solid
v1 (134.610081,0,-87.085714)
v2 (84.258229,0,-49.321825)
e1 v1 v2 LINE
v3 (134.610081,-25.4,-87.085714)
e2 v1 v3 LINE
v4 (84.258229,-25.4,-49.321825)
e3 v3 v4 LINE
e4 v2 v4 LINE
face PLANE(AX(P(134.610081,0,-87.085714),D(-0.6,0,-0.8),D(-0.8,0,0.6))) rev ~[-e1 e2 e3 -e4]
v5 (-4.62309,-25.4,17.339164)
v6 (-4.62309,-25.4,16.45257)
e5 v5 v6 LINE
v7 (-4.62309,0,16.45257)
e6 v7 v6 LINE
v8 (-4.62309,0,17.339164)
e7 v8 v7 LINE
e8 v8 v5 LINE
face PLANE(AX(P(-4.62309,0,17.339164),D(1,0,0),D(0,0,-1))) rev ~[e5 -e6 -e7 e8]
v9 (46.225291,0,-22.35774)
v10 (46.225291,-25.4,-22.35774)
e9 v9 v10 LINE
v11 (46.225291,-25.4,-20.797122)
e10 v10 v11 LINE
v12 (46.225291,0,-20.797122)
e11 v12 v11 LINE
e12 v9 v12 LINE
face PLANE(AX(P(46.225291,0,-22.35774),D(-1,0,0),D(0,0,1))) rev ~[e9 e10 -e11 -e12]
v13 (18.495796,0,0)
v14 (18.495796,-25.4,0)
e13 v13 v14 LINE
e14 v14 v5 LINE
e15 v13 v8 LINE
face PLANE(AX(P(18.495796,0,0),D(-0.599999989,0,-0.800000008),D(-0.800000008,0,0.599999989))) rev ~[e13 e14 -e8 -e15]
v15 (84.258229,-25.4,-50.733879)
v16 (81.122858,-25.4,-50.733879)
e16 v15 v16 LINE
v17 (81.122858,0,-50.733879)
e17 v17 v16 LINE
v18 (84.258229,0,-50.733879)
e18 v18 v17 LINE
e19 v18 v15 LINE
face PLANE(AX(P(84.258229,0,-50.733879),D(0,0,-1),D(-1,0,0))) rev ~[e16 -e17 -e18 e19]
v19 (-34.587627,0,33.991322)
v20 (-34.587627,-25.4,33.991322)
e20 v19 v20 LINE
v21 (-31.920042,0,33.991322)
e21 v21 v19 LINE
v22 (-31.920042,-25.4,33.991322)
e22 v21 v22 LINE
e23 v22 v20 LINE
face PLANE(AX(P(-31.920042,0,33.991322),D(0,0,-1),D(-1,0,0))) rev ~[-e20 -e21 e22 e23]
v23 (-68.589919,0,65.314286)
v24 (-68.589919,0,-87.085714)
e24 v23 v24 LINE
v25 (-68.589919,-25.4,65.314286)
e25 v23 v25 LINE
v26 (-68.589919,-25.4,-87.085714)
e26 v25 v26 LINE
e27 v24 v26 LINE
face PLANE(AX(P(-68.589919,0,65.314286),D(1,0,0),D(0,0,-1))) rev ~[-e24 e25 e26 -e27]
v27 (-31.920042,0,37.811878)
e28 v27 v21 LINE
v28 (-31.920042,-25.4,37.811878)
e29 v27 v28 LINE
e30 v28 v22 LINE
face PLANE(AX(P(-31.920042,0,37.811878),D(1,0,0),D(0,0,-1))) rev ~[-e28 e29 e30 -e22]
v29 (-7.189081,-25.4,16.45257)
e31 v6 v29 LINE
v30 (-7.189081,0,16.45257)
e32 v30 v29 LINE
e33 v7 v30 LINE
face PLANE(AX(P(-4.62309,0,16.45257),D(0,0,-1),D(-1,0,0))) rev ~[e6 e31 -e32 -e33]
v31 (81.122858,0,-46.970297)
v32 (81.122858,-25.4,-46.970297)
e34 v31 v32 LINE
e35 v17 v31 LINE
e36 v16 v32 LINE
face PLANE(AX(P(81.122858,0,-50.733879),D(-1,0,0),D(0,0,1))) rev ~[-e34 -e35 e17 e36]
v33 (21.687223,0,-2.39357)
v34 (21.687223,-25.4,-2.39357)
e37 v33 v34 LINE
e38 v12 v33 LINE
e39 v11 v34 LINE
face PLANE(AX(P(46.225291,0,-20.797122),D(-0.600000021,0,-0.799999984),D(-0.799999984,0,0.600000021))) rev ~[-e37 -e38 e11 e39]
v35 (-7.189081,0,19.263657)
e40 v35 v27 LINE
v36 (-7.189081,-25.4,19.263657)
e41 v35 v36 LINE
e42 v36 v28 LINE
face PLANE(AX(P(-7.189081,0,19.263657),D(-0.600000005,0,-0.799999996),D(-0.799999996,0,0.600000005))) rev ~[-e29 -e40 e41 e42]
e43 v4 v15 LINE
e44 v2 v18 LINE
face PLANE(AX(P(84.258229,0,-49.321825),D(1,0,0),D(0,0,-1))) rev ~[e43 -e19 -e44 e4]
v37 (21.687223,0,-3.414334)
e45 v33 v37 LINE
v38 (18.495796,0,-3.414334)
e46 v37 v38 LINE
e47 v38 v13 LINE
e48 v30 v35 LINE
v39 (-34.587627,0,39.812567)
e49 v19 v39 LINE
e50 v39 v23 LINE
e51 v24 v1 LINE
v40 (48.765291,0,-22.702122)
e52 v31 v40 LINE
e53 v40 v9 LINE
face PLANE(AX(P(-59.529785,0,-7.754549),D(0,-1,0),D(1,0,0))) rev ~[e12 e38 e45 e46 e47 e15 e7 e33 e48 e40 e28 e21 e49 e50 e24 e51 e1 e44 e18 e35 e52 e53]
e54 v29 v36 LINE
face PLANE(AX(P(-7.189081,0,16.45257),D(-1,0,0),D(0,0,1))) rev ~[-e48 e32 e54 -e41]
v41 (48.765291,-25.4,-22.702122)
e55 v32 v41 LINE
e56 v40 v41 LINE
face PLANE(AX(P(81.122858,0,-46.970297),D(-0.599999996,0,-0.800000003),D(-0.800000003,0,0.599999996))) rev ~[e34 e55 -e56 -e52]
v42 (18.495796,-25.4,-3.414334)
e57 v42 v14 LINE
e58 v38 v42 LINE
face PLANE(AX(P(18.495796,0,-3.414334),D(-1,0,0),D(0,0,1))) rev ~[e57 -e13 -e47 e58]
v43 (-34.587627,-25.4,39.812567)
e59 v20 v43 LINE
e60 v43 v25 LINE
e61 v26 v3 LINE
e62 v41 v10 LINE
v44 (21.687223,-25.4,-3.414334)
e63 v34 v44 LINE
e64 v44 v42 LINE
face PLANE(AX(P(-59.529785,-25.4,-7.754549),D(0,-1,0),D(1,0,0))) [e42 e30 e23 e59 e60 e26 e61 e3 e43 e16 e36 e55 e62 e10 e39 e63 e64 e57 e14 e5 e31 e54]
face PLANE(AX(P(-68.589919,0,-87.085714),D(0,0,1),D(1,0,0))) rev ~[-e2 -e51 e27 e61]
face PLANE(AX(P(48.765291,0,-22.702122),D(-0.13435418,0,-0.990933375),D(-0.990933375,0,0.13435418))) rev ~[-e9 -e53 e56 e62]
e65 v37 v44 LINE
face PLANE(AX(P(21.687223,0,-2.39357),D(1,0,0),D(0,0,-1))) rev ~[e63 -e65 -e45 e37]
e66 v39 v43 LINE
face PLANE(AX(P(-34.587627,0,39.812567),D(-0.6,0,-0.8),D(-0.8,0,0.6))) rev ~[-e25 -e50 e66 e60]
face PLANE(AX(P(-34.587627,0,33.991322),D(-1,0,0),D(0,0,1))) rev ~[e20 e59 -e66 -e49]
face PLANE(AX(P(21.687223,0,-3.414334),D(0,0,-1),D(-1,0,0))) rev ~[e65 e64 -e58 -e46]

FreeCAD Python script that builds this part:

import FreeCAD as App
import Part
import Sketcher
from FreeCAD import Vector
Q = App.Units.Quantity


def add_polygon(sketch, points):
    """Adds a closed chain of lines whose ends are joined by coincident constraints."""
    first, n = sketch.GeometryCount, len(points)
    for a, b in zip(points, points[1:] + points[:1]):
        sketch.addGeometry(Part.LineSegment(App.Vector(*a, 0), App.Vector(*b, 0)), False)
    for i in range(n):
        sketch.addConstraint(Sketcher.Constraint("Coincident", first + i, 2, first + (i + 1) % n, 1))

doc = App.newDocument("Part")
body = doc.addObject("PartDesign::Body", "Body")

# Sketch on XZ plane
sketch1 = doc.addObject("Sketcher::SketchObject", "Sketch")
body.addObject(sketch1)
sketch1.AttachmentSupport = (doc.XZ_Plane, [""])
sketch1.MapMode = "FlatFace"
add_polygon(sketch1, [(-34.6, 39.8), (-68.6, 65.3), (-68.6, -87.1), (134.6, -87.1), (84.3, -49.3), (84.3, -50.7), (81.1, -50.7), (81.1, -47), (48.8, -22.7), (46.2, -22.4), (46.2, -20.8), (21.7, -2.4), (21.7, -3.4), (18.5, -3.4), (18.5, 0), (-4.6, 17.3), (-4.6, 16.5), (-7.2, 16.5), (-7.2, 19.3), (-31.9, 37.8), (-31.9, 34), (-34.6, 34)])  # lines 0-21
sketch1.addConstraint([
    Sketcher.Constraint("Vertical", 1),
    Sketcher.Constraint("Horizontal", 2),
    Sketcher.Constraint("Vertical", 4),
    Sketcher.Constraint("Horizontal", 5),
    Sketcher.Constraint("Vertical", 6),
    Sketcher.Constraint("Vertical", 9),
    Sketcher.Constraint("Vertical", 11),
    Sketcher.Constraint("Horizontal", 12),
    Sketcher.Constraint("Vertical", 13),
    Sketcher.Constraint("Vertical", 15),
    Sketcher.Constraint("Horizontal", 16),
    Sketcher.Constraint("Vertical", 17),
    Sketcher.Constraint("Vertical", 19),
    Sketcher.Constraint("Horizontal", 20),
    Sketcher.Constraint("Vertical", 21),
    Sketcher.Constraint("PointOnObject", 13, 2, -1),
    Sketcher.Constraint("Parallel", 0, 3),
    Sketcher.Constraint("Parallel", 3, 7),
    Sketcher.Constraint("Parallel", 7, 10),
    Sketcher.Constraint("Parallel", 10, 14),
    Sketcher.Constraint("Parallel", 14, 18),
    Sketcher.Constraint("DistanceX", 2, 1, 2, 2, Q("8 in")),
    Sketcher.Constraint("DistanceY", 1, 2, 1, 1, Q("6 in")),
    Sketcher.Constraint("DistanceX", 8, 2, 7, 2, Q("0.1 in")),
    Sketcher.Constraint("DistanceY", 7, 2, 9, 2, Q("0.075 in")),
    Sketcher.Constraint("Distance", 7, Q("1.5923999 in")),
    Sketcher.Constraint("Distance", 18, 30.913701),
    Sketcher.Constraint("DistanceX", 5, 2, 5, 1, 3.135371),
    Sketcher.Constraint("DistanceX", 16, 2, 16, 1, 2.565991),
    Sketcher.Constraint("DistanceY", 6, 1, 6, 2, 3.763582),
    Sketcher.Constraint("DistanceY", 12, 2, 14, 2, 20.753498),
    Sketcher.Constraint("Distance", 8, 2.56324),
    Sketcher.Constraint("DistanceX", 12, 2, 12, 1, 3.191427),
    Sketcher.Constraint("DistanceX", 20, 2, 20, 1, 2.667585),
    Sketcher.Constraint("DistanceY", 4, 2, 4, 1, 1.412054),
    Sketcher.Constraint("DistanceY", 11, 2, 11, 1, 1.020764),
    Sketcher.Constraint("DistanceY", 13, 1, 13, 2, 3.414334),
    Sketcher.Constraint("DistanceY", 15, 2, 15, 1, 0.886594),
    Sketcher.Constraint("DistanceY", 17, 1, 17, 2, 2.811087),
    Sketcher.Constraint("DistanceY", 19, 2, 19, 1, 3.820556),
    Sketcher.Constraint("DistanceY", 21, 1, 21, 2, 5.821245),
    Sketcher.Constraint("DistanceX", 0, 2, -1, 1, 68.589919),
    Sketcher.Constraint("DistanceX", -1, 1, 3, 2, 84.258229),
    Sketcher.Constraint("DistanceY", 4, 2, -1, 1, 50.733879),
])
pad1 = doc.addObject("PartDesign::Pad", "Pad")
body.addObject(pad1)
pad1.Profile = sketch1
pad1.Length = Q("1 in")

doc.recompute()
